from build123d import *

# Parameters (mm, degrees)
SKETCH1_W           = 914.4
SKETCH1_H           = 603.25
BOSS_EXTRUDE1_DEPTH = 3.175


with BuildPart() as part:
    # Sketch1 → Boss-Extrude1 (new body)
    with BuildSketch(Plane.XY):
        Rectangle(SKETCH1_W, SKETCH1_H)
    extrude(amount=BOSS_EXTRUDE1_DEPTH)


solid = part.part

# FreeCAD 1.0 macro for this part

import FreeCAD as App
import Part
import Sketcher
Q = App.Units.Quantity


def add_polygon(sketch, points):
    """Adds a closed chain of lines whose ends are joined by coincident constraints."""
    first, n = sketch.GeometryCount, len(points)
    for a, b in zip(points, points[1:] + points[:1]):
        sketch.addGeometry(Part.LineSegment(App.Vector(*a, 0), App.Vector(*b, 0)), False)
    for i in range(n):
        sketch.addConstraint(Sketcher.Constraint("Coincident", first + i, 2, first + (i + 1) % n, 1))

doc = App.newDocument("Part")
body = doc.addObject("PartDesign::Body", "Body")

sketch1 = body.newObject("Sketcher::SketchObject", "Sketch")
sketch1.AttachmentSupport = (doc.getObject("XY_Plane"), [""])
sketch1.MapMode = "FlatFace"
add_polygon(sketch1, [(-457, 302), (-457, -302), (457, -302), (457, 302)])
sketch1.addConstraint([
    Sketcher.Constraint("Vertical", 0),
    Sketcher.Constraint("Horizontal", 1),
    Sketcher.Constraint("Vertical", 2),
    Sketcher.Constraint("Horizontal", 3),
    Sketcher.Constraint("Symmetric", 0, 2, 2, 2, -1, 1),
    Sketcher.Constraint("DistanceX", 1, 1, 1, 2, Q("36 in")),
    Sketcher.Constraint("DistanceY", 0, 2, 0, 1, Q("23.75 in")),
])
pad1 = body.newObject("PartDesign::Pad", "Pad")
pad1.Profile = sketch1
pad1.Length = Q("0.125 in")

doc.recompute()
